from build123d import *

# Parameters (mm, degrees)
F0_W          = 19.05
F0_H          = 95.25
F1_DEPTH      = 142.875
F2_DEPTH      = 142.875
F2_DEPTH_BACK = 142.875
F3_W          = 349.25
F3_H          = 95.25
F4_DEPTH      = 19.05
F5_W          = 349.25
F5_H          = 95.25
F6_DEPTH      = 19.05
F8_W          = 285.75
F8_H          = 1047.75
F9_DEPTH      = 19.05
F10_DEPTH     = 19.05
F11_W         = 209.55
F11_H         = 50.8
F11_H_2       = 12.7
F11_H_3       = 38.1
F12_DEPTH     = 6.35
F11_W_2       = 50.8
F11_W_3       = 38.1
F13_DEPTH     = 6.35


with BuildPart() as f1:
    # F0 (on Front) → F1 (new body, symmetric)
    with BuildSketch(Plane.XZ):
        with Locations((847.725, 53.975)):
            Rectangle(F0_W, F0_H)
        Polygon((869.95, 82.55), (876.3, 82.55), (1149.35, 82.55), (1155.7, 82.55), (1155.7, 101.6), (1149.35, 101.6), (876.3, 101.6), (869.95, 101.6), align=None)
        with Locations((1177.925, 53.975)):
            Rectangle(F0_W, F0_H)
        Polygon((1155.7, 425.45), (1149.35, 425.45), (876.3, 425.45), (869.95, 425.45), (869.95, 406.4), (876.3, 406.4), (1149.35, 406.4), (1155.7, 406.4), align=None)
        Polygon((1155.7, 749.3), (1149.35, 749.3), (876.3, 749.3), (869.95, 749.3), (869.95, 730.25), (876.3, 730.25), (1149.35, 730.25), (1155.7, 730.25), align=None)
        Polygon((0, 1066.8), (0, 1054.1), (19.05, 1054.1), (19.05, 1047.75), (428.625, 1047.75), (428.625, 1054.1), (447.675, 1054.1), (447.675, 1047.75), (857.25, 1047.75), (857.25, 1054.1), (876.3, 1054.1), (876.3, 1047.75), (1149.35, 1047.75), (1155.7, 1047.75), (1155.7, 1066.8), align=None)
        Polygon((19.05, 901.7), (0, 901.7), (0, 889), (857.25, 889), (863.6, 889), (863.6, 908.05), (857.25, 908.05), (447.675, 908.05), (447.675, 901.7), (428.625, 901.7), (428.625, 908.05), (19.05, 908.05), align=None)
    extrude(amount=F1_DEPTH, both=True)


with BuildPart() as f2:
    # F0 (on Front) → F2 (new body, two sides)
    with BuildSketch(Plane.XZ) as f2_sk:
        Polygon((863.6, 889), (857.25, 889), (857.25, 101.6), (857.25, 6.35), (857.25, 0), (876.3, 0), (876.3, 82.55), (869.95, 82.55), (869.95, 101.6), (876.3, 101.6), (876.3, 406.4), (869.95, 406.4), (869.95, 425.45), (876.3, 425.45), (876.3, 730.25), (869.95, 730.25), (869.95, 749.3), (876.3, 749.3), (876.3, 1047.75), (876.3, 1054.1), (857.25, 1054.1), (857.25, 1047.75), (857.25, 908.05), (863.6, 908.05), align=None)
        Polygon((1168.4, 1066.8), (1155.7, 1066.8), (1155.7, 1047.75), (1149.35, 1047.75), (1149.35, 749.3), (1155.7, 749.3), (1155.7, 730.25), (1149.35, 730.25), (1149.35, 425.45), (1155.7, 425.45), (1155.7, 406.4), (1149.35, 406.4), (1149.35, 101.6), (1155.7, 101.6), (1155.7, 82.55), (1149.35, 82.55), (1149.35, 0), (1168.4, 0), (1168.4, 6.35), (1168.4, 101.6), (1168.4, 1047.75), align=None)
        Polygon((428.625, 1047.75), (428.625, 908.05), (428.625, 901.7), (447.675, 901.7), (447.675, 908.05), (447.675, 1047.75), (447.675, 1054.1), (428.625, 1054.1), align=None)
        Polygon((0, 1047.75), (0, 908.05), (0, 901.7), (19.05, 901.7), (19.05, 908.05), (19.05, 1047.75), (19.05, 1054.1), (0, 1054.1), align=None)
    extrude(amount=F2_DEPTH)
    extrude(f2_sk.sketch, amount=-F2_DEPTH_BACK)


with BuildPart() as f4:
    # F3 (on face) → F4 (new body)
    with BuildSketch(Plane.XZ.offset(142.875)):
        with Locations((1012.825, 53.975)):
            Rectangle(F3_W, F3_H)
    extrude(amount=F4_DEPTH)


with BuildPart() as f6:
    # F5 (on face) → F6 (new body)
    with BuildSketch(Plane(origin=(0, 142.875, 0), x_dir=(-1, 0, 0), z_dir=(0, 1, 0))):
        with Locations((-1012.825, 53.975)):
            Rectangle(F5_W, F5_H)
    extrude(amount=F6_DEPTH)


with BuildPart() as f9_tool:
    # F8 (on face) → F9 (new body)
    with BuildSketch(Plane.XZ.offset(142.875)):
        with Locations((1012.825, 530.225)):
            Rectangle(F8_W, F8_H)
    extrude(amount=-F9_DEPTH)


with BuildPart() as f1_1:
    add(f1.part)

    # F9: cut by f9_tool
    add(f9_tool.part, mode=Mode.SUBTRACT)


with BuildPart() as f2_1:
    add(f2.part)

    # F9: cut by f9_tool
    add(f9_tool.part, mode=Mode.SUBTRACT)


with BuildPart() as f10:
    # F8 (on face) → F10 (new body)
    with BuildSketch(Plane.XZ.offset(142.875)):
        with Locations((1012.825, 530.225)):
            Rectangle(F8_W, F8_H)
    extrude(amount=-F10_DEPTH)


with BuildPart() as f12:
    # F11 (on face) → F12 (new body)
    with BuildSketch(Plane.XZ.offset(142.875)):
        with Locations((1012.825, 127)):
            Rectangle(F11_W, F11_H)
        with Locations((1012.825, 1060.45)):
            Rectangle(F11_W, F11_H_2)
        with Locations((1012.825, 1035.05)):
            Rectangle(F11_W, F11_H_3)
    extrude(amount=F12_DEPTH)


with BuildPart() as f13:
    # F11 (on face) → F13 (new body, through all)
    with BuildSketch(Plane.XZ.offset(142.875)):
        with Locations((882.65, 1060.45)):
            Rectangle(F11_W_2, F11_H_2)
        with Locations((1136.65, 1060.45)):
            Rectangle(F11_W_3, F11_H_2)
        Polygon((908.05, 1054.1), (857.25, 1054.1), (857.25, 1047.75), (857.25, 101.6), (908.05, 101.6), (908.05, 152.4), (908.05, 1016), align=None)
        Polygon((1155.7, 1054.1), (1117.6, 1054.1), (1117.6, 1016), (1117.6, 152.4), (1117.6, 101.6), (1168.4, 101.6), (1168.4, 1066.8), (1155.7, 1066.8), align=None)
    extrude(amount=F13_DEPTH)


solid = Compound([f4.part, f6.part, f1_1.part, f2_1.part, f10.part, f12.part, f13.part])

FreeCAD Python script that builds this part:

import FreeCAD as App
import Part
import Sketcher
from FreeCAD import Vector
Q = App.Units.Quantity

doc = App.newDocument("Part")
params = doc.addObject("Spreadsheet::Sheet", "Params")
for row, (alias, value) in enumerate([
    ("sketch1_width", "11 in"),
    ("sketch1_width2", "34 in"),
    ("sketch1_width3", "45.5 in"),
    ("sketch1_height", "0.5 in"),
    ("sketch1_width4", "11.25 in"),
    ("pad1_length", "11.25 in"),
    ("sketch2_height", "35 in"),
    ("sketch2_height2", "12 in"),
    ("sketch2_height3", "42 in"),
    ("sketch2_height4", "6 in"),
    ("sketch2_width", "0.5 in"),
    ("pad2_length", "5.625 in"),
    ("pad2_length2", "5.625 in"),
    ("sketch3_width", "13.75 in"),
    ("sketch3_height", "3.75 in"),
    ("pad3_length", "0.75 in"),
    ("sketch4_width", "13.75 in"),
    ("sketch4_height", "3.75 in"),
    ("pad4_length", "0.75 in"),
    ("sketch5_width", "11.25 in"),
    ("sketch5_height", "41.25 in"),
    ("pad5_length", "0.75 in"),
    ("sketch6_width", "11.25 in"),
    ("sketch6_height", "41.25 in"),
    ("pad6_length", "0.75 in"),
    ("sketch7_height", "2 in"),
    ("sketch7_width", "8.25 in"),
    ("pad7_length", "0.25 in"),
    ("sketch8_width", "2 in"),
    ("sketch8_height", "38 in"),
    ("pad8_length", "0.25 in"),
], start=1):
    params.set(f"A{row}", alias)
    params.set(f"B{row}", "=" + value)
    params.setAlias(f"B{row}", alias)

body = doc.addObject("PartDesign::Body", "Body")
body.AllowCompound = True

# Sketch on XZ plane
sketch1 = doc.addObject("Sketcher::SketchObject", "Sketch")
body.addObject(sketch1)
sketch1.AttachmentSupport = (doc.XZ_Plane, [""])
sketch1.MapMode = "FlatFace"
sketch1.addGeometry([
    Part.LineSegment(Vector(838, 102, 0), Vector(838, 6, 0)),  # 0
    Part.LineSegment(Vector(838, 6, 0), Vector(857, 6, 0)),  # 1
    Part.LineSegment(Vector(857, 6, 0), Vector(857, 102, 0)),  # 2
    Part.LineSegment(Vector(857, 102, 0), Vector(838, 102, 0)),  # 3
    Part.LineSegment(Vector(870, 83, 0), Vector(1156, 83, 0)),  # 4
    Part.LineSegment(Vector(1156, 83, 0), Vector(1156, 102, 0)),  # 5
    Part.LineSegment(Vector(1156, 102, 0), Vector(870, 102, 0)),  # 6
    Part.LineSegment(Vector(870, 102, 0), Vector(870, 83, 0)),  # 7
    Part.LineSegment(Vector(1168, 102, 0), Vector(1168, 6, 0)),  # 8
    Part.LineSegment(Vector(1168, 6, 0), Vector(1187, 6, 0)),  # 9
    Part.LineSegment(Vector(1187, 6, 0), Vector(1187, 102, 0)),  # 10
    Part.LineSegment(Vector(1187, 102, 0), Vector(1168, 102, 0)),  # 11
    Part.LineSegment(Vector(1156, 425, 0), Vector(870, 425, 0)),  # 12
    Part.LineSegment(Vector(870, 425, 0), Vector(870, 406, 0)),  # 13
    Part.LineSegment(Vector(870, 406, 0), Vector(1156, 406, 0)),  # 14
    Part.LineSegment(Vector(1156, 406, 0), Vector(1156, 425, 0)),  # 15
    Part.LineSegment(Vector(1156, 749, 0), Vector(870, 749, 0)),  # 16
    Part.LineSegment(Vector(870, 749, 0), Vector(870, 730, 0)),  # 17
    Part.LineSegment(Vector(870, 730, 0), Vector(1156, 730, 0)),  # 18
    Part.LineSegment(Vector(1156, 730, 0), Vector(1156, 749, 0)),  # 19
    Part.LineSegment(Vector(0, 1067, 0), Vector(0, 1054, 0)),  # 20
    Part.LineSegment(Vector(0, 1054, 0), Vector(19, 1054, 0)),  # 21
    Part.LineSegment(Vector(19, 1054, 0), Vector(19, 1048, 0)),  # 22
    Part.LineSegment(Vector(19, 1048, 0), Vector(429, 1048, 0)),  # 23
    Part.LineSegment(Vector(429, 1048, 0), Vector(429, 1054, 0)),  # 24
    Part.LineSegment(Vector(429, 1054, 0), Vector(448, 1054, 0)),  # 25
    Part.LineSegment(Vector(448, 1054, 0), Vector(448, 1048, 0)),  # 26
    Part.LineSegment(Vector(448, 1048, 0), Vector(857, 1048, 0)),  # 27
    Part.LineSegment(Vector(857, 1048, 0), Vector(857, 1054, 0)),  # 28
    Part.LineSegment(Vector(857, 1054, 0), Vector(876, 1054, 0)),  # 29
    Part.LineSegment(Vector(876, 1054, 0), Vector(876, 1048, 0)),  # 30
    Part.LineSegment(Vector(876, 1048, 0), Vector(1156, 1048, 0)),  # 31
    Part.LineSegment(Vector(1156, 1048, 0), Vector(1156, 1067, 0)),  # 32
    Part.LineSegment(Vector(1156, 1067, 0), Vector(0, 1067, 0)),  # 33
    Part.LineSegment(Vector(19, 902, 0), Vector(0, 902, 0)),  # 34
    Part.LineSegment(Vector(0, 902, 0), Vector(0, 889, 0)),  # 35
    Part.LineSegment(Vector(0, 889, 0), Vector(864, 889, 0)),  # 36
    Part.LineSegment(Vector(864, 889, 0), Vector(864, 908, 0)),  # 37
    Part.LineSegment(Vector(864, 908, 0), Vector(448, 908, 0)),  # 38
    Part.LineSegment(Vector(448, 908, 0), Vector(448, 902, 0)),  # 39
    Part.LineSegment(Vector(448, 902, 0), Vector(429, 902, 0)),  # 40
    Part.LineSegment(Vector(429, 902, 0), Vector(429, 908, 0)),  # 41
    Part.LineSegment(Vector(429, 908, 0), Vector(19, 908, 0)),  # 42
    Part.LineSegment(Vector(19, 908, 0), Vector(19, 902, 0)),  # 43
], False)
sketch1.addConstraint([
    Sketcher.Constraint("Coincident", 0, 2, 1, 1),
    Sketcher.Constraint("Coincident", 1, 2, 2, 1),
    Sketcher.Constraint("Coincident", 2, 2, 3, 1),
    Sketcher.Constraint("Coincident", 3, 2, 0, 1),
    Sketcher.Constraint("Coincident", 4, 2, 5, 1),
    Sketcher.Constraint("Coincident", 5, 2, 6, 1),
    Sketcher.Constraint("Coincident", 6, 2, 7, 1),
    Sketcher.Constraint("Coincident", 7, 2, 4, 1),
    Sketcher.Constraint("Coincident", 8, 2, 9, 1),
    Sketcher.Constraint("Coincident", 9, 2, 10, 1),
    Sketcher.Constraint("Coincident", 10, 2, 11, 1),
    Sketcher.Constraint("Coincident", 11, 2, 8, 1),
    Sketcher.Constraint("Coincident", 12, 2, 13, 1),
    Sketcher.Constraint("Coincident", 13, 2, 14, 1),
    Sketcher.Constraint("Coincident", 14, 2, 15, 1),
    Sketcher.Constraint("Coincident", 15, 2, 12, 1),
    Sketcher.Constraint("Coincident", 16, 2, 17, 1),
    Sketcher.Constraint("Coincident", 17, 2, 18, 1),
    Sketcher.Constraint("Coincident", 18, 2, 19, 1),
    Sketcher.Constraint("Coincident", 19, 2, 16, 1),
    Sketcher.Constraint("Coincident", 20, 2, 21, 1),
    Sketcher.Constraint("Coincident", 21, 2, 22, 1),
    Sketcher.Constraint("Coincident", 22, 2, 23, 1),
    Sketcher.Constraint("Coincident", 23, 2, 24, 1),
    Sketcher.Constraint("Coincident", 24, 2, 25, 1),
    Sketcher.Constraint("Coincident", 25, 2, 26, 1),
    Sketcher.Constraint("Coincident", 26, 2, 27, 1),
    Sketcher.Constraint("Coincident", 27, 2, 28, 1),
    Sketcher.Constraint("Coincident", 28, 2, 29, 1),
    Sketcher.Constraint("Coincident", 29, 2, 30, 1),
    Sketcher.Constraint("Coincident", 30, 2, 31, 1),
    Sketcher.Constraint("Coincident", 31, 2, 32, 1),
    Sketcher.Constraint("Coincident", 32, 2, 33, 1),
    Sketcher.Constraint("Coincident", 33, 2, 20, 1),
    Sketcher.Constraint("Coincident", 34, 2, 35, 1),
    Sketcher.Constraint("Coincident", 35, 2, 36, 1),
    Sketcher.Constraint("Coincident", 36, 2, 37, 1),
    Sketcher.Constraint("Coincident", 37, 2, 38, 1),
    Sketcher.Constraint("Coincident", 38, 2, 39, 1),
    Sketcher.Constraint("Coincident", 39, 2, 40, 1),
    Sketcher.Constraint("Coincident", 40, 2, 41, 1),
    Sketcher.Constraint("Coincident", 41, 2, 42, 1),
    Sketcher.Constraint("Coincident", 42, 2, 43, 1),
    Sketcher.Constraint("Coincident", 43, 2, 34, 1),
    Sketcher.Constraint("Vertical", 0),
    Sketcher.Constraint("Horizontal", 1),
    Sketcher.Constraint("Vertical", 2),
    Sketcher.Constraint("Horizontal", 3),
    Sketcher.Constraint("Horizontal", 4),
    Sketcher.Constraint("Vertical", 5),
    Sketcher.Constraint("Horizontal", 6),
    Sketcher.Constraint("Vertical", 7),
    Sketcher.Constraint("Vertical", 8),
    Sketcher.Constraint("Horizontal", 9),
    Sketcher.Constraint("Vertical", 10),
    Sketcher.Constraint("Horizontal", 11),
    Sketcher.Constraint("Horizontal", 12),
    Sketcher.Constraint("Vertical", 13),
    Sketcher.Constraint("Horizontal", 14),
    Sketcher.Constraint("Vertical", 15),
    Sketcher.Constraint("Horizontal", 16),
    Sketcher.Constraint("Vertical", 17),
    Sketcher.Constraint("Horizontal", 18),
    Sketcher.Constraint("Vertical", 19),
    Sketcher.Constraint("Vertical", 20),
    Sketcher.Constraint("Horizontal", 21),
    Sketcher.Constraint("Vertical", 22),
    Sketcher.Constraint("Horizontal", 23),
    Sketcher.Constraint("Vertical", 24),
    Sketcher.Constraint("Horizontal", 25),
    Sketcher.Constraint("Vertical", 26),
    Sketcher.Constraint("Horizontal", 27),
    Sketcher.Constraint("Vertical", 28),
    Sketcher.Constraint("Horizontal", 29),
    Sketcher.Constraint("Vertical", 30),
    Sketcher.Constraint("Horizontal", 31),
    Sketcher.Constraint("Vertical", 32),
    Sketcher.Constraint("Horizontal", 33),
    Sketcher.Constraint("Horizontal", 34),
    Sketcher.Constraint("Vertical", 35),
    Sketcher.Constraint("Horizontal", 36),
    Sketcher.Constraint("Vertical", 37),
    Sketcher.Constraint("Horizontal", 38),
    Sketcher.Constraint("Vertical", 39),
    Sketcher.Constraint("Horizontal", 40),
    Sketcher.Constraint("Vertical", 41),
    Sketcher.Constraint("Horizontal", 42),
    Sketcher.Constraint("Vertical", 43),
    Sketcher.Constraint("PointOnObject", 20, 2, -2),
    Sketcher.Constraint("PointOnObject", 34, 2, -2),
    Sketcher.Constraint("Horizontal", 3, 2, 5, 2),
    Sketcher.Constraint("Horizontal", 1, 2, 8, 2),
    Sketcher.Constraint("Horizontal", 6, 2, 10, 2),
    Sketcher.Constraint("Horizontal", 21, 2, 24, 2),
    Sketcher.Constraint("Horizontal", 23, 2, 26, 2),
    Sketcher.Constraint("Horizontal", 25, 2, 28, 2),
    Sketcher.Constraint("Horizontal", 27, 2, 30, 2),
    Sketcher.Constraint("Horizontal", 34, 2, 39, 2),
    Sketcher.Constraint("Horizontal", 38, 2, 41, 2),
    Sketcher.Constraint("Vertical", 7, 2, 12, 2),
    Sketcher.Constraint("Vertical", 5, 2, 14, 2),
    Sketcher.Constraint("Vertical", 13, 2, 16, 2),
    Sketcher.Constraint("Vertical", 15, 2, 18, 2),
    Sketcher.Constraint("Vertical", 2, 2, 27, 2),
    Sketcher.Constraint("Vertical", 19, 2, 31, 2),
    Sketcher.Constraint("Vertical", 26, 2, 38, 2),
    Sketcher.Constraint("Vertical", 24, 2, 40, 2),
    Sketcher.Constraint("Vertical", 22, 2, 42, 2),
    Sketcher.Constraint("Equal", 3, 9),
    Sketcher.Constraint("Equal", 11, 21),
    Sketcher.Constraint("Equal", 21, 25),
    Sketcher.Constraint("Equal", 23, 27),
    Sketcher.Constraint("Equal", 25, 29),
    Sketcher.Constraint("Equal", 40, 5),
    Sketcher.Constraint("Equal", 7, 13),
    Sketcher.Constraint("Equal", 15, 17),
    Sketcher.Constraint("Equal", 19, 32),
    Sketcher.Constraint("Equal", 20, 35),
    Sketcher.Constraint("Equal", 32, 37),
    Sketcher.Constraint("DistanceX", 31, 1, 31, 2, Q("11 in")),
    Sketcher.Constraint("DistanceX", 36, 1, 36, 2, Q("34 in")),
    Sketcher.Constraint("DistanceX", 33, 2, 33, 1, Q("45.5 in")),
    Sketcher.Constraint("DistanceY", 20, 2, 20, 1, Q("0.5 in")),
    Sketcher.Constraint("DistanceX", -1, 1, 0, 2, Q("33 in")),
    Sketcher.Constraint("DistanceY", -1, 1, 2, 2, Q("4 in")),
    Sketcher.Constraint("DistanceX", -1, 1, 8, 2, Q("46 in")),
    Sketcher.Constraint("DistanceY", -1, 1, 13, 2, Q("16 in")),
    Sketcher.Constraint("DistanceY", -1, 1, 32, 2, Q("42 in")),
    Sketcher.Constraint("DistanceY", -1, 1, 35, 2, Q("35 in")),
    Sketcher.Constraint("DistanceY", 1, 2, 4, 2, Q("3 in")),
    Sketcher.Constraint("DistanceY", 12, 2, 17, 2, Q("12 in")),
    Sketcher.Constraint("DistanceX", 4, 1, 4, 2, Q("11.25 in")),
])
sketch1.setExpression("Constraints[119]", "Params.sketch1_width")
sketch1.setExpression("Constraints[120]", "Params.sketch1_width2")
sketch1.setExpression("Constraints[121]", "Params.sketch1_width3")
sketch1.setExpression("Constraints[122]", "Params.sketch1_height")
sketch1.setExpression("Constraints[131]", "Params.sketch1_width4")
pad1 = doc.addObject("PartDesign::Pad", "Pad")
body.addObject(pad1)
pad1.Profile = sketch1
pad1.setExpression("Length", "Params.pad1_length")
pad1.Midplane = True
body2 = doc.addObject("PartDesign::Body", "Body001")
body2.AllowCompound = True

# Sketch on XZ plane
sketch2 = doc.addObject("Sketcher::SketchObject", "Sketch001")
body2.addObject(sketch2)
sketch2.AttachmentSupport = (doc.getObject("XZ_Plane001"), [""])
sketch2.MapMode = "FlatFace"
sketch2.addGeometry([
    Part.LineSegment(Vector(864, 889, 0), Vector(857, 889, 0)),  # 0
    Part.LineSegment(Vector(857, 889, 0), Vector(857, 0, 0)),  # 1
    Part.LineSegment(Vector(857, 0, 0), Vector(876, 0, 0)),  # 2
    Part.LineSegment(Vector(876, 0, 0), Vector(876, 83, 0)),  # 3
    Part.LineSegment(Vector(876, 83, 0), Vector(870, 83, 0)),  # 4
    Part.LineSegment(Vector(870, 83, 0), Vector(870, 102, 0)),  # 5
    Part.LineSegment(Vector(870, 102, 0), Vector(876, 102, 0)),  # 6
    Part.LineSegment(Vector(876, 102, 0), Vector(876, 406, 0)),  # 7
    Part.LineSegment(Vector(876, 406, 0), Vector(870, 406, 0)),  # 8
    Part.LineSegment(Vector(870, 406, 0), Vector(870, 425, 0)),  # 9
    Part.LineSegment(Vector(870, 425, 0), Vector(876, 425, 0)),  # 10
    Part.LineSegment(Vector(876, 425, 0), Vector(876, 730, 0)),  # 11
    Part.LineSegment(Vector(876, 730, 0), Vector(870, 730, 0)),  # 12
    Part.LineSegment(Vector(870, 730, 0), Vector(870, 749, 0)),  # 13
    Part.LineSegment(Vector(870, 749, 0), Vector(876, 749, 0)),  # 14
    Part.LineSegment(Vector(876, 749, 0), Vector(876, 1054, 0)),  # 15
    Part.LineSegment(Vector(876, 1054, 0), Vector(857, 1054, 0)),  # 16
    Part.LineSegment(Vector(857, 1054, 0), Vector(857, 908, 0)),  # 17
    Part.LineSegment(Vector(857, 908, 0), Vector(864, 908, 0)),  # 18
    Part.LineSegment(Vector(864, 908, 0), Vector(864, 889, 0)),  # 19
    Part.LineSegment(Vector(1168, 1067, 0), Vector(1156, 1067, 0)),  # 20
    Part.LineSegment(Vector(1156, 1067, 0), Vector(1156, 1048, 0)),  # 21
    Part.LineSegment(Vector(1156, 1048, 0), Vector(1149, 1048, 0)),  # 22
    Part.LineSegment(Vector(1149, 1048, 0), Vector(1149, 749, 0)),  # 23
    Part.LineSegment(Vector(1149, 749, 0), Vector(1156, 749, 0)),  # 24
    Part.LineSegment(Vector(1156, 749, 0), Vector(1156, 730, 0)),  # 25
    Part.LineSegment(Vector(1156, 730, 0), Vector(1149, 730, 0)),  # 26
    Part.LineSegment(Vector(1149, 730, 0), Vector(1149, 425, 0)),  # 27
    Part.LineSegment(Vector(1149, 425, 0), Vector(1156, 425, 0)),  # 28
    Part.LineSegment(Vector(1156, 425, 0), Vector(1156, 406, 0)),  # 29
    Part.LineSegment(Vector(1156, 406, 0), Vector(1149, 406, 0)),  # 30
    Part.LineSegment(Vector(1149, 406, 0), Vector(1149, 102, 0)),  # 31
    Part.LineSegment(Vector(1149, 102, 0), Vector(1156, 102, 0)),  # 32
    Part.LineSegment(Vector(1156, 102, 0), Vector(1156, 83, 0)),  # 33
    Part.LineSegment(Vector(1156, 83, 0), Vector(1149, 83, 0)),  # 34
    Part.LineSegment(Vector(1149, 83, 0), Vector(1149, 0, 0)),  # 35
    Part.LineSegment(Vector(1149, 0, 0), Vector(1168, 0, 0)),  # 36
    Part.LineSegment(Vector(1168, 0, 0), Vector(1168, 1067, 0)),  # 37
    Part.LineSegment(Vector(429, 902, 0), Vector(448, 902, 0)),  # 38
    Part.LineSegment(Vector(448, 902, 0), Vector(448, 1054, 0)),  # 39
    Part.LineSegment(Vector(448, 1054, 0), Vector(429, 1054, 0)),  # 40
    Part.LineSegment(Vector(429, 1054, 0), Vector(429, 902, 0)),  # 41
    Part.LineSegment(Vector(0, 902, 0), Vector(19, 902, 0)),  # 42
    Part.LineSegment(Vector(19, 902, 0), Vector(19, 1054, 0)),  # 43
    Part.LineSegment(Vector(19, 1054, 0), Vector(0, 1054, 0)),  # 44
    Part.LineSegment(Vector(0, 1054, 0), Vector(0, 902, 0)),  # 45
], False)
sketch2.addConstraint([
    Sketcher.Constraint("Coincident", 0, 2, 1, 1),
    Sketcher.Constraint("Coincident", 1, 2, 2, 1),
    Sketcher.Constraint("Coincident", 2, 2, 3, 1),
    Sketcher.Constraint("Coincident", 3, 2, 4, 1),
    Sketcher.Constraint("Coincident", 4, 2, 5, 1),
    Sketcher.Constraint("Coincident", 5, 2, 6, 1),
    Sketcher.Constraint("Coincident", 6, 2, 7, 1),
    Sketcher.Constraint("Coincident", 7, 2, 8, 1),
    Sketcher.Constraint("Coincident", 8, 2, 9, 1),
    Sketcher.Constraint("Coincident", 9, 2, 10, 1),
    Sketcher.Constraint("Coincident", 10, 2, 11, 1),
    Sketcher.Constraint("Coincident", 11, 2, 12, 1),
    Sketcher.Constraint("Coincident", 12, 2, 13, 1),
    Sketcher.Constraint("Coincident", 13, 2, 14, 1),
    Sketcher.Constraint("Coincident", 14, 2, 15, 1),
    Sketcher.Constraint("Coincident", 15, 2, 16, 1),
    Sketcher.Constraint("Coincident", 16, 2, 17, 1),
    Sketcher.Constraint("Coincident", 17, 2, 18, 1),
    Sketcher.Constraint("Coincident", 18, 2, 19, 1),
    Sketcher.Constraint("Coincident", 19, 2, 0, 1),
    Sketcher.Constraint("Coincident", 20, 2, 21, 1),
    Sketcher.Constraint("Coincident", 21, 2, 22, 1),
    Sketcher.Constraint("Coincident", 22, 2, 23, 1),
    Sketcher.Constraint("Coincident", 23, 2, 24, 1),
    Sketcher.Constraint("Coincident", 24, 2, 25, 1),
    Sketcher.Constraint("Coincident", 25, 2, 26, 1),
    Sketcher.Constraint("Coincident", 26, 2, 27, 1),
    Sketcher.Constraint("Coincident", 27, 2, 28, 1),
    Sketcher.Constraint("Coincident", 28, 2, 29, 1),
    Sketcher.Constraint("Coincident", 29, 2, 30, 1),
    Sketcher.Constraint("Coincident", 30, 2, 31, 1),
    Sketcher.Constraint("Coincident", 31, 2, 32, 1),
    Sketcher.Constraint("Coincident", 32, 2, 33, 1),
    Sketcher.Constraint("Coincident", 33, 2, 34, 1),
    Sketcher.Constraint("Coincident", 34, 2, 35, 1),
    Sketcher.Constraint("Coincident", 35, 2, 36, 1),
    Sketcher.Constraint("Coincident", 36, 2, 37, 1),
    Sketcher.Constraint("Coincident", 37, 2, 20, 1),
    Sketcher.Constraint("Coincident", 38, 2, 39, 1),
    Sketcher.Constraint("Coincident", 39, 2, 40, 1),
    Sketcher.Constraint("Coincident", 40, 2, 41, 1),
    Sketcher.Constraint("Coincident", 41, 2, 38, 1),
    Sketcher.Constraint("Coincident", 42, 2, 43, 1),
    Sketcher.Constraint("Coincident", 43, 2, 44, 1),
    Sketcher.Constraint("Coincident", 44, 2, 45, 1),
    Sketcher.Constraint("Coincident", 45, 2, 42, 1),
    Sketcher.Constraint("Horizontal", 0),
    Sketcher.Constraint("Vertical", 1),
    Sketcher.Constraint("Horizontal", 2),
    Sketcher.Constraint("Vertical", 3),
    Sketcher.Constraint("Horizontal", 4),
    Sketcher.Constraint("Vertical", 5),
    Sketcher.Constraint("Horizontal", 6),
    Sketcher.Constraint("Vertical", 7),
    Sketcher.Constraint("Horizontal", 8),
    Sketcher.Constraint("Vertical", 9),
    Sketcher.Constraint("Horizontal", 10),
    Sketcher.Constraint("Vertical", 11),
    Sketcher.Constraint("Horizontal", 12),
    Sketcher.Constraint("Vertical", 13),
    Sketcher.Constraint("Horizontal", 14),
    Sketcher.Constraint("Vertical", 15),
    Sketcher.Constraint("Horizontal", 16),
    Sketcher.Constraint("Vertical", 17),
    Sketcher.Constraint("Horizontal", 18),
    Sketcher.Constraint("Vertical", 19),
    Sketcher.Constraint("Horizontal", 20),
    Sketcher.Constraint("Vertical", 21),
    Sketcher.Constraint("Horizontal", 22),
    Sketcher.Constraint("Vertical", 23),
    Sketcher.Constraint("Horizontal", 24),
    Sketcher.Constraint("Vertical", 25),
    Sketcher.Constraint("Horizontal", 26),
    Sketcher.Constraint("Vertical", 27),
    Sketcher.Constraint("Horizontal", 28),
    Sketcher.Constraint("Vertical", 29),
    Sketcher.Constraint("Horizontal", 30),
    Sketcher.Constraint("Vertical", 31),
    Sketcher.Constraint("Horizontal", 32),
    Sketcher.Constraint("Vertical", 33),
    Sketcher.Constraint("Horizontal", 34),
    Sketcher.Constraint("Vertical", 35),
    Sketcher.Constraint("Horizontal", 36),
    Sketcher.Constraint("Vertical", 37),
    Sketcher.Constraint("Horizontal", 38),
    Sketcher.Constraint("Vertical", 39),
    Sketcher.Constraint("Horizontal", 40),
    Sketcher.Constraint("Vertical", 41),
    Sketcher.Constraint("Horizontal", 42),
    Sketcher.Constraint("Vertical", 43),
    Sketcher.Constraint("Horizontal", 44),
    Sketcher.Constraint("Vertical", 45),
    Sketcher.Constraint("PointOnObject", 1, 2, -1),
    Sketcher.Constraint("PointOnObject", 35, 2, -1),
    Sketcher.Constraint("PointOnObject", 44, 2, -2),
    Sketcher.Constraint("Horizontal", 14, 2, 23, 2),
    Sketcher.Constraint("Horizontal", 12, 2, 25, 2),
    Sketcher.Constraint("Horizontal", 10, 2, 27, 2),
    Sketcher.Constraint("Horizontal", 8, 2, 29, 2),
    Sketcher.Constraint("Horizontal", 6, 2, 31, 2),
    Sketcher.Constraint("Horizontal", 4, 2, 33, 2),
    Sketcher.Constraint("Horizontal", 16, 2, 39, 2),
    Sketcher.Constraint("Horizontal", 41, 2, 42, 2),
    Sketcher.Constraint("Horizontal", 40, 2, 43, 2),
    Sketcher.Constraint("Vertical", 3, 2, 6, 2),
    Sketcher.Constraint("Vertical", 5, 2, 8, 2),
    Sketcher.Constraint("Vertical", 7, 2, 10, 2),
    Sketcher.Constraint("Vertical", 9, 2, 12, 2),
    Sketcher.Constraint("Vertical", 11, 2, 14, 2),
    Sketcher.Constraint("Vertical", 1, 2, 16, 2),
    Sketcher.Constraint("Vertical", 21, 2, 24, 2),
    Sketcher.Constraint("Vertical", 23, 2, 26, 2),
    Sketcher.Constraint("Vertical", 25, 2, 28, 2),
    Sketcher.Constraint("Vertical", 27, 2, 30, 2),
    Sketcher.Constraint("Vertical", 29, 2, 32, 2),
    Sketcher.Constraint("Vertical", 31, 2, 34, 2),
    Sketcher.Constraint("Equal", 0, 4),
    Sketcher.Constraint("Equal", 18, 22),
    Sketcher.Constraint("Equal", 16, 36),
    Sketcher.Constraint("Equal", 36, 38),
    Sketcher.Constraint("Equal", 40, 42),
    Sketcher.Constraint("Equal", 44, 5),
    Sketcher.Constraint("Equal", 5, 9),
    Sketcher.Constraint("Equal", 7, 11),
    Sketcher.Constraint("Equal", 9, 13),
    Sketcher.Constraint("Equal", 11, 15),
    Sketcher.Constraint("Equal", 13, 19),
    Sketcher.Constraint("Equal", 19, 21),
    Sketcher.Constraint("DistanceY", 1, 2, 1, 1, Q("35 in")),
    Sketcher.Constraint("DistanceY", 7, 1, 7, 2, Q("12 in")),
    Sketcher.Constraint("DistanceY", 37, 1, 37, 2, Q("42 in")),
    Sketcher.Constraint("DistanceY", 39, 1, 39, 2, Q("6 in")),
    Sketcher.Constraint("DistanceX", 20, 2, 20, 1, Q("0.5 in")),
    Sketcher.Constraint("DistanceY", -1, 1, 5, 2, Q("4 in")),
    Sketcher.Constraint("DistanceX", -1, 1, 18, 2, Q("34 in")),
    Sketcher.Constraint("DistanceX", -1, 1, 36, 2, Q("46 in")),
    Sketcher.Constraint("DistanceX", 42, 2, 17, 2, Q("33 in")),
    Sketcher.Constraint("DistanceX", -1, 1, 38, 2, Q("17.625 in")),
])
sketch2.setExpression("Constraints[128]", "Params.sketch2_height")
sketch2.setExpression("Constraints[129]", "Params.sketch2_height2")
sketch2.setExpression("Constraints[130]", "Params.sketch2_height3")
sketch2.setExpression("Constraints[131]", "Params.sketch2_height4")
sketch2.setExpression("Constraints[132]", "Params.sketch2_width")
pad2 = doc.addObject("PartDesign::Pad", "Pad001")
body2.addObject(pad2)
pad2.Profile = sketch2
pad2.Type = "TwoLengths"
pad2.setExpression("Length", "Params.pad2_length")
pad2.setExpression("Length2", "Params.pad2_length2")
body3 = doc.addObject("PartDesign::Body", "Body002")

# Sketch on XZ plane
sketch3 = doc.addObject("Sketcher::SketchObject", "Sketch002")
body3.addObject(sketch3)
sketch3.AttachmentSupport = (doc.getObject("XZ_Plane002"), [""])
sketch3.MapMode = "FlatFace"
sketch3.AttachmentOffset = App.Placement(Vector(0, 0, 5.625 * 25.4), App.Rotation())
sketch3.addGeometry([
    Part.LineSegment(Vector(838, 102, 0), Vector(838, 6, 0)),
    Part.LineSegment(Vector(838, 6, 0), Vector(1187, 6, 0)),
    Part.LineSegment(Vector(1187, 6, 0), Vector(1187, 102, 0)),
    Part.LineSegment(Vector(1187, 102, 0), Vector(838, 102, 0)),
], False)
sketch3.addConstraint([
    Sketcher.Constraint("Coincident", 0, 2, 1, 1),
    Sketcher.Constraint("Coincident", 1, 2, 2, 1),
    Sketcher.Constraint("Coincident", 2, 2, 3, 1),
    Sketcher.Constraint("Coincident", 3, 2, 0, 1),
    Sketcher.Constraint("Vertical", 0),
    Sketcher.Constraint("Horizontal", 1),
    Sketcher.Constraint("Vertical", 2),
    Sketcher.Constraint("Horizontal", 3),
    Sketcher.Constraint("DistanceX", -1, 1, 0, 2, Q("33 in")),
    Sketcher.Constraint("DistanceY", -1, 1, 2, 2, Q("4 in")),
    Sketcher.Constraint("DistanceX", 1, 1, 1, 2, Q("13.75 in")),
    Sketcher.Constraint("DistanceY", 0, 2, 0, 1, Q("3.75 in")),
])
sketch3.setExpression("Constraints[10]", "Params.sketch3_width")
sketch3.setExpression("Constraints[11]", "Params.sketch3_height")
pad3 = doc.addObject("PartDesign::Pad", "Pad002")
body3.addObject(pad3)
pad3.Profile = sketch3
pad3.setExpression("Length", "Params.pad3_length")
body4 = doc.addObject("PartDesign::Body", "Body003")

# Sketch on XZ plane
sketch4 = doc.addObject("Sketcher::SketchObject", "Sketch003")
body4.addObject(sketch4)
sketch4.AttachmentSupport = (doc.getObject("XZ_Plane003"), [""])
sketch4.MapMode = "FlatFace"
sketch4.AttachmentOffset = App.Placement(Vector(0, 0, -5.625 * 25.4), App.Rotation())
sketch4.addGeometry([
    Part.LineSegment(Vector(1187, 102, 0), Vector(1187, 6, 0)),
    Part.LineSegment(Vector(1187, 6, 0), Vector(838, 6, 0)),
    Part.LineSegment(Vector(838, 6, 0), Vector(838, 102, 0)),
    Part.LineSegment(Vector(838, 102, 0), Vector(1187, 102, 0)),
], False)
sketch4.addConstraint([
    Sketcher.Constraint("Coincident", 0, 2, 1, 1),
    Sketcher.Constraint("Coincident", 1, 2, 2, 1),
    Sketcher.Constraint("Coincident", 2, 2, 3, 1),
    Sketcher.Constraint("Coincident", 3, 2, 0, 1),
    Sketcher.Constraint("Vertical", 0),
    Sketcher.Constraint("Horizontal", 1),
    Sketcher.Constraint("Vertical", 2),
    Sketcher.Constraint("Horizontal", 3),
    Sketcher.Constraint("DistanceX", -1, 1, 1, 2, Q("33 in")),
    Sketcher.Constraint("DistanceY", -1, 1, 2, 2, Q("4 in")),
    Sketcher.Constraint("DistanceX", 1, 2, 1, 1, Q("13.75 in")),
    Sketcher.Constraint("DistanceY", 0, 2, 0, 1, Q("3.75 in")),
])
sketch4.setExpression("Constraints[10]", "Params.sketch4_width")
sketch4.setExpression("Constraints[11]", "Params.sketch4_height")
pad4 = doc.addObject("PartDesign::Pad", "Pad003")
body4.addObject(pad4)
pad4.Profile = sketch4
pad4.setExpression("Length", "Params.pad4_length")
pad4.Reversed = True
body5 = doc.addObject("PartDesign::Body", "Body004")

# Sketch on XZ plane
sketch5 = doc.addObject("Sketcher::SketchObject", "Sketch004")
body5.addObject(sketch5)
sketch5.AttachmentSupport = (doc.getObject("XZ_Plane004"), [""])
sketch5.MapMode = "FlatFace"
sketch5.AttachmentOffset = App.Placement(Vector(0, 0, 5.625 * 25.4), App.Rotation())
sketch5.addGeometry([
    Part.LineSegment(Vector(870, 1054, 0), Vector(870, 6, 0)),
    Part.LineSegment(Vector(870, 6, 0), Vector(1156, 6, 0)),
    Part.LineSegment(Vector(1156, 6, 0), Vector(1156, 1054, 0)),
    Part.LineSegment(Vector(1156, 1054, 0), Vector(870, 1054, 0)),
], False)
sketch5.addConstraint([
    Sketcher.Constraint("Coincident", 0, 2, 1, 1),
    Sketcher.Constraint("Coincident", 1, 2, 2, 1),
    Sketcher.Constraint("Coincident", 2, 2, 3, 1),
    Sketcher.Constraint("Coincident", 3, 2, 0, 1),
    Sketcher.Constraint("Vertical", 0),
    Sketcher.Constraint("Horizontal", 1),
    Sketcher.Constraint("Vertical", 2),
    Sketcher.Constraint("Horizontal", 3),
    Sketcher.Constraint("DistanceX", 1, 1, 1, 2, Q("11.25 in")),
    Sketcher.Constraint("DistanceY", 0, 2, 0, 1, Q("41.25 in")),
    Sketcher.Constraint("DistanceX", -1, 1, 1, 2, Q("45.5 in")),
    Sketcher.Constraint("DistanceY", -1, 1, 2, 2, Q("41.5 in")),
])
sketch5.setExpression("Constraints[8]", "Params.sketch5_width")
sketch5.setExpression("Constraints[9]", "Params.sketch5_height")
pad5 = doc.addObject("PartDesign::Pad", "Pad004")
body5.addObject(pad5)
pad5.Profile = sketch5
pad5.setExpression("Length", "Params.pad5_length")
pad5.Reversed = True
body.AllowCompound = True
doc.recompute()

body6 = doc.addObject("PartDesign::Body", "Body005")
body6.BaseFeature = body5
boolean = doc.addObject("PartDesign::Boolean", "Boolean")
body.addObject(boolean)
boolean.Type = "Cut"
boolean.addObjects([body6])
doc.recompute()
body2.AllowCompound = True
doc.recompute()

boolean2 = doc.addObject("PartDesign::Boolean", "Boolean001")
body2.addObject(boolean2)
boolean2.Type = "Cut"
boolean2.addObjects([body5])
body7 = doc.addObject("PartDesign::Body", "Body006")

# Sketch on XZ plane
sketch6 = doc.addObject("Sketcher::SketchObject", "Sketch005")
body7.addObject(sketch6)
sketch6.AttachmentSupport = (doc.getObject("XZ_Plane006"), [""])
sketch6.MapMode = "FlatFace"
sketch6.AttachmentOffset = App.Placement(Vector(0, 0, 5.625 * 25.4), App.Rotation())
sketch6.addGeometry([
    Part.LineSegment(Vector(870, 1054, 0), Vector(870, 6, 0)),
    Part.LineSegment(Vector(870, 6, 0), Vector(1156, 6, 0)),
    Part.LineSegment(Vector(1156, 6, 0), Vector(1156, 1054, 0)),
    Part.LineSegment(Vector(1156, 1054, 0), Vector(870, 1054, 0)),
], False)
sketch6.addConstraint([
    Sketcher.Constraint("Coincident", 0, 2, 1, 1),
    Sketcher.Constraint("Coincident", 1, 2, 2, 1),
    Sketcher.Constraint("Coincident", 2, 2, 3, 1),
    Sketcher.Constraint("Coincident", 3, 2, 0, 1),
    Sketcher.Constraint("Vertical", 0),
    Sketcher.Constraint("Horizontal", 1),
    Sketcher.Constraint("Vertical", 2),
    Sketcher.Constraint("Horizontal", 3),
    Sketcher.Constraint("DistanceX", 1, 1, 1, 2, Q("11.25 in")),
    Sketcher.Constraint("DistanceY", 0, 2, 0, 1, Q("41.25 in")),
    Sketcher.Constraint("DistanceX", -1, 1, 1, 2, Q("45.5 in")),
    Sketcher.Constraint("DistanceY", -1, 1, 2, 2, Q("41.5 in")),
])
sketch6.setExpression("Constraints[8]", "Params.sketch6_width")
sketch6.setExpression("Constraints[9]", "Params.sketch6_height")
pad6 = doc.addObject("PartDesign::Pad", "Pad005")
body7.addObject(pad6)
pad6.Profile = sketch6
pad6.setExpression("Length", "Params.pad6_length")
pad6.Reversed = True
body8 = doc.addObject("PartDesign::Body", "Body007")
body8.AllowCompound = True

# Sketch on XZ plane
sketch7 = doc.addObject("Sketcher::SketchObject", "Sketch006")
body8.addObject(sketch7)
sketch7.AttachmentSupport = (doc.getObject("XZ_Plane007"), [""])
sketch7.MapMode = "FlatFace"
sketch7.AttachmentOffset = App.Placement(Vector(0, 0, 5.625 * 25.4), App.Rotation())
sketch7.addGeometry([
    Part.LineSegment(Vector(908, 152, 0), Vector(908, 102, 0)),  # 0
    Part.LineSegment(Vector(908, 102, 0), Vector(1118, 102, 0)),  # 1
    Part.LineSegment(Vector(1118, 102, 0), Vector(1118, 152, 0)),  # 2
    Part.LineSegment(Vector(1118, 152, 0), Vector(908, 152, 0)),  # 3
    Part.LineSegment(Vector(908, 1067, 0), Vector(908, 1016, 0)),  # 4
    Part.LineSegment(Vector(908, 1016, 0), Vector(1118, 1016, 0)),  # 5
    Part.LineSegment(Vector(1118, 1016, 0), Vector(1118, 1067, 0)),  # 6
    Part.LineSegment(Vector(1118, 1067, 0), Vector(908, 1067, 0)),  # 7
], False)
sketch7.addConstraint([
    Sketcher.Constraint("Coincident", 0, 2, 1, 1),
    Sketcher.Constraint("Coincident", 1, 2, 2, 1),
    Sketcher.Constraint("Coincident", 2, 2, 3, 1),
    Sketcher.Constraint("Coincident", 3, 2, 0, 1),
    Sketcher.Constraint("Coincident", 4, 2, 5, 1),
    Sketcher.Constraint("Coincident", 5, 2, 6, 1),
    Sketcher.Constraint("Coincident", 6, 2, 7, 1),
    Sketcher.Constraint("Coincident", 7, 2, 4, 1),
    Sketcher.Constraint("Vertical", 0),
    Sketcher.Constraint("Horizontal", 1),
    Sketcher.Constraint("Vertical", 2),
    Sketcher.Constraint("Horizontal", 3),
    Sketcher.Constraint("Vertical", 4),
    Sketcher.Constraint("Horizontal", 5),
    Sketcher.Constraint("Vertical", 6),
    Sketcher.Constraint("Horizontal", 7),
    Sketcher.Constraint("Vertical", 3, 2, 4, 2),
    Sketcher.Constraint("Vertical", 2, 2, 5, 2),
    Sketcher.Constraint("Equal", 2, 4),
    Sketcher.Constraint("DistanceY", 0, 2, 0, 1, Q("2 in")),
    Sketcher.Constraint("DistanceY", -1, 1, 0, 2, Q("4 in")),
    Sketcher.Constraint("DistanceX", -1, 1, 1, 2, Q("44 in")),
    Sketcher.Constraint("DistanceY", -1, 1, 4, 2, Q("40 in")),
    Sketcher.Constraint("DistanceX", 1, 1, 1, 2, Q("8.25 in")),
])
sketch7.setExpression("Constraints[19]", "Params.sketch7_height")
sketch7.setExpression("Constraints[23]", "Params.sketch7_width")
pad7 = doc.addObject("PartDesign::Pad", "Pad006")
body8.addObject(pad7)
pad7.Profile = sketch7
pad7.setExpression("Length", "Params.pad7_length")
body9 = doc.addObject("PartDesign::Body", "Body008")
body9.AllowCompound = True

# Sketch on XZ plane
sketch8 = doc.addObject("Sketcher::SketchObject", "Sketch007")
body9.addObject(sketch8)
sketch8.AttachmentSupport = (doc.getObject("XZ_Plane008"), [""])
sketch8.MapMode = "FlatFace"
sketch8.AttachmentOffset = App.Placement(Vector(0, 0, 5.625 * 25.4), App.Rotation())
sketch8.addGeometry([
    Part.LineSegment(Vector(857, 1067, 0), Vector(857, 102, 0)),  # 0
    Part.LineSegment(Vector(857, 102, 0), Vector(908, 102, 0)),  # 1
    Part.LineSegment(Vector(908, 102, 0), Vector(908, 1067, 0)),  # 2
    Part.LineSegment(Vector(908, 1067, 0), Vector(857, 1067, 0)),  # 3
    Part.LineSegment(Vector(1118, 1067, 0), Vector(1118, 102, 0)),  # 4
    Part.LineSegment(Vector(1118, 102, 0), Vector(1168, 102, 0)),  # 5
    Part.LineSegment(Vector(1168, 102, 0), Vector(1168, 1067, 0)),  # 6
    Part.LineSegment(Vector(1168, 1067, 0), Vector(1118, 1067, 0)),  # 7
], False)
sketch8.addConstraint([
    Sketcher.Constraint("Coincident", 0, 2, 1, 1),
    Sketcher.Constraint("Coincident", 1, 2, 2, 1),
    Sketcher.Constraint("Coincident", 2, 2, 3, 1),
    Sketcher.Constraint("Coincident", 3, 2, 0, 1),
    Sketcher.Constraint("Coincident", 4, 2, 5, 1),
    Sketcher.Constraint("Coincident", 5, 2, 6, 1),
    Sketcher.Constraint("Coincident", 6, 2, 7, 1),
    Sketcher.Constraint("Coincident", 7, 2, 4, 1),
    Sketcher.Constraint("Vertical", 0),
    Sketcher.Constraint("Horizontal", 1),
    Sketcher.Constraint("Vertical", 2),
    Sketcher.Constraint("Horizontal", 3),
    Sketcher.Constraint("Vertical", 4),
    Sketcher.Constraint("Horizontal", 5),
    Sketcher.Constraint("Vertical", 6),
    Sketcher.Constraint("Horizontal", 7),
    Sketcher.Constraint("Horizontal", 1, 2, 4, 2),
    Sketcher.Constraint("Horizontal", 3, 2, 6, 2),
    Sketcher.Constraint("Equal", 3, 5),
    Sketcher.Constraint("DistanceX", 1, 1, 1, 2, Q("2 in")),
    Sketcher.Constraint("DistanceY", 0, 2, 0, 1, Q("38 in")),
    Sketcher.Constraint("DistanceY", -1, 1, 0, 2, Q("4 in")),
    Sketcher.Constraint("DistanceX", -1, 1, 4, 2, Q("44 in")),
    Sketcher.Constraint("DistanceX", -1, 1, 0, 2, Q("33.75 in")),
])
sketch8.setExpression("Constraints[19]", "Params.sketch8_width")
sketch8.setExpression("Constraints[20]", "Params.sketch8_height")
pad8 = doc.addObject("PartDesign::Pad", "Pad007")
body9.addObject(pad8)
pad8.Profile = sketch8
pad8.setExpression("Length", "Params.pad8_length")

doc.recompute()
